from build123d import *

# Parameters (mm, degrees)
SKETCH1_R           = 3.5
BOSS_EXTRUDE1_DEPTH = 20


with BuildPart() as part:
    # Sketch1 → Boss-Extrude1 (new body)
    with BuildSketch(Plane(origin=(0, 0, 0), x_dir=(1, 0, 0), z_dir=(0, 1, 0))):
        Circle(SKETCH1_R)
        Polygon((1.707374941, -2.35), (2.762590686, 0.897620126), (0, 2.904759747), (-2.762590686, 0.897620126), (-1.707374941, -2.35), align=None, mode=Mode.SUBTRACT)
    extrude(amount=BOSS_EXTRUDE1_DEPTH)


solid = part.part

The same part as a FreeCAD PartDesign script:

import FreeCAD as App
import Part
import Sketcher

V = App.Vector
Q = App.Units.Quantity


def add_polygon(sketch, points):
    """Adds a closed chain of lines whose ends are joined by coincident constraints."""
    first, n = sketch.GeometryCount, len(points)
    for a, b in zip(points, points[1:] + points[:1]):
        sketch.addGeometry(Part.LineSegment(App.Vector(*a, 0), App.Vector(*b, 0)), False)
    for i in range(n):
        sketch.addConstraint(Sketcher.Constraint("Coincident", first + i, 2, first + (i + 1) % n, 1))

doc = App.newDocument("Part")
body = doc.addObject("PartDesign::Body", "Body")

# Sketch on XZ plane
sketch1 = body.newObject("Sketcher::SketchObject", "Sketch")
sketch1.AttachmentSupport = (doc.getObject("XZ_Plane"), [""])
sketch1.MapMode = "FlatFace"
sketch1.addGeometry(Part.Circle(V(0, 0, 0), V(0, 0, 1), 3.5), False)  # 0
add_polygon(sketch1, [(2.762591, -0.89762), (1.707375, 2.35), (-1.707375, 2.35), (-2.762591, -0.89762), (0, -2.90476)])  # lines 1-5
sketch1.addConstraint(Sketcher.Constraint("Horizontal", 2))
sketch1.addConstraint(Sketcher.Constraint("Coincident", 0, 3, -1, 1))
sketch1.addConstraint(Sketcher.Constraint("Symmetric", 3, 2, 5, 2, -2))
sketch1.addConstraint(Sketcher.Constraint("PointOnObject", 4, 2, -2))
sketch1.addConstraint(Sketcher.Constraint("Equal", 1, 3))
sketch1.addConstraint(Sketcher.Constraint("Equal", 3, 4))
sketch1.addConstraint(Sketcher.Constraint("Diameter", 0, Q("7 mm")))
sketch1.addConstraint(Sketcher.Constraint("Angle", 1, Q("108 deg")))
sketch1.addConstraint(Sketcher.Constraint("Angle", 4, Q("-36 deg")))
sketch1.addConstraint(Sketcher.Constraint("DistanceY", -1, 1, 1, 2, Q("2.35 mm")))
sketch1.addConstraint(Sketcher.Constraint("DistanceX", 2, 2, 2, 1, Q("3.41475 mm")))
pad1 = body.newObject("PartDesign::Pad", "Pad")
pad1.Profile = sketch1
pad1.Length = 20
pad1.Reversed = True

doc.recompute()
